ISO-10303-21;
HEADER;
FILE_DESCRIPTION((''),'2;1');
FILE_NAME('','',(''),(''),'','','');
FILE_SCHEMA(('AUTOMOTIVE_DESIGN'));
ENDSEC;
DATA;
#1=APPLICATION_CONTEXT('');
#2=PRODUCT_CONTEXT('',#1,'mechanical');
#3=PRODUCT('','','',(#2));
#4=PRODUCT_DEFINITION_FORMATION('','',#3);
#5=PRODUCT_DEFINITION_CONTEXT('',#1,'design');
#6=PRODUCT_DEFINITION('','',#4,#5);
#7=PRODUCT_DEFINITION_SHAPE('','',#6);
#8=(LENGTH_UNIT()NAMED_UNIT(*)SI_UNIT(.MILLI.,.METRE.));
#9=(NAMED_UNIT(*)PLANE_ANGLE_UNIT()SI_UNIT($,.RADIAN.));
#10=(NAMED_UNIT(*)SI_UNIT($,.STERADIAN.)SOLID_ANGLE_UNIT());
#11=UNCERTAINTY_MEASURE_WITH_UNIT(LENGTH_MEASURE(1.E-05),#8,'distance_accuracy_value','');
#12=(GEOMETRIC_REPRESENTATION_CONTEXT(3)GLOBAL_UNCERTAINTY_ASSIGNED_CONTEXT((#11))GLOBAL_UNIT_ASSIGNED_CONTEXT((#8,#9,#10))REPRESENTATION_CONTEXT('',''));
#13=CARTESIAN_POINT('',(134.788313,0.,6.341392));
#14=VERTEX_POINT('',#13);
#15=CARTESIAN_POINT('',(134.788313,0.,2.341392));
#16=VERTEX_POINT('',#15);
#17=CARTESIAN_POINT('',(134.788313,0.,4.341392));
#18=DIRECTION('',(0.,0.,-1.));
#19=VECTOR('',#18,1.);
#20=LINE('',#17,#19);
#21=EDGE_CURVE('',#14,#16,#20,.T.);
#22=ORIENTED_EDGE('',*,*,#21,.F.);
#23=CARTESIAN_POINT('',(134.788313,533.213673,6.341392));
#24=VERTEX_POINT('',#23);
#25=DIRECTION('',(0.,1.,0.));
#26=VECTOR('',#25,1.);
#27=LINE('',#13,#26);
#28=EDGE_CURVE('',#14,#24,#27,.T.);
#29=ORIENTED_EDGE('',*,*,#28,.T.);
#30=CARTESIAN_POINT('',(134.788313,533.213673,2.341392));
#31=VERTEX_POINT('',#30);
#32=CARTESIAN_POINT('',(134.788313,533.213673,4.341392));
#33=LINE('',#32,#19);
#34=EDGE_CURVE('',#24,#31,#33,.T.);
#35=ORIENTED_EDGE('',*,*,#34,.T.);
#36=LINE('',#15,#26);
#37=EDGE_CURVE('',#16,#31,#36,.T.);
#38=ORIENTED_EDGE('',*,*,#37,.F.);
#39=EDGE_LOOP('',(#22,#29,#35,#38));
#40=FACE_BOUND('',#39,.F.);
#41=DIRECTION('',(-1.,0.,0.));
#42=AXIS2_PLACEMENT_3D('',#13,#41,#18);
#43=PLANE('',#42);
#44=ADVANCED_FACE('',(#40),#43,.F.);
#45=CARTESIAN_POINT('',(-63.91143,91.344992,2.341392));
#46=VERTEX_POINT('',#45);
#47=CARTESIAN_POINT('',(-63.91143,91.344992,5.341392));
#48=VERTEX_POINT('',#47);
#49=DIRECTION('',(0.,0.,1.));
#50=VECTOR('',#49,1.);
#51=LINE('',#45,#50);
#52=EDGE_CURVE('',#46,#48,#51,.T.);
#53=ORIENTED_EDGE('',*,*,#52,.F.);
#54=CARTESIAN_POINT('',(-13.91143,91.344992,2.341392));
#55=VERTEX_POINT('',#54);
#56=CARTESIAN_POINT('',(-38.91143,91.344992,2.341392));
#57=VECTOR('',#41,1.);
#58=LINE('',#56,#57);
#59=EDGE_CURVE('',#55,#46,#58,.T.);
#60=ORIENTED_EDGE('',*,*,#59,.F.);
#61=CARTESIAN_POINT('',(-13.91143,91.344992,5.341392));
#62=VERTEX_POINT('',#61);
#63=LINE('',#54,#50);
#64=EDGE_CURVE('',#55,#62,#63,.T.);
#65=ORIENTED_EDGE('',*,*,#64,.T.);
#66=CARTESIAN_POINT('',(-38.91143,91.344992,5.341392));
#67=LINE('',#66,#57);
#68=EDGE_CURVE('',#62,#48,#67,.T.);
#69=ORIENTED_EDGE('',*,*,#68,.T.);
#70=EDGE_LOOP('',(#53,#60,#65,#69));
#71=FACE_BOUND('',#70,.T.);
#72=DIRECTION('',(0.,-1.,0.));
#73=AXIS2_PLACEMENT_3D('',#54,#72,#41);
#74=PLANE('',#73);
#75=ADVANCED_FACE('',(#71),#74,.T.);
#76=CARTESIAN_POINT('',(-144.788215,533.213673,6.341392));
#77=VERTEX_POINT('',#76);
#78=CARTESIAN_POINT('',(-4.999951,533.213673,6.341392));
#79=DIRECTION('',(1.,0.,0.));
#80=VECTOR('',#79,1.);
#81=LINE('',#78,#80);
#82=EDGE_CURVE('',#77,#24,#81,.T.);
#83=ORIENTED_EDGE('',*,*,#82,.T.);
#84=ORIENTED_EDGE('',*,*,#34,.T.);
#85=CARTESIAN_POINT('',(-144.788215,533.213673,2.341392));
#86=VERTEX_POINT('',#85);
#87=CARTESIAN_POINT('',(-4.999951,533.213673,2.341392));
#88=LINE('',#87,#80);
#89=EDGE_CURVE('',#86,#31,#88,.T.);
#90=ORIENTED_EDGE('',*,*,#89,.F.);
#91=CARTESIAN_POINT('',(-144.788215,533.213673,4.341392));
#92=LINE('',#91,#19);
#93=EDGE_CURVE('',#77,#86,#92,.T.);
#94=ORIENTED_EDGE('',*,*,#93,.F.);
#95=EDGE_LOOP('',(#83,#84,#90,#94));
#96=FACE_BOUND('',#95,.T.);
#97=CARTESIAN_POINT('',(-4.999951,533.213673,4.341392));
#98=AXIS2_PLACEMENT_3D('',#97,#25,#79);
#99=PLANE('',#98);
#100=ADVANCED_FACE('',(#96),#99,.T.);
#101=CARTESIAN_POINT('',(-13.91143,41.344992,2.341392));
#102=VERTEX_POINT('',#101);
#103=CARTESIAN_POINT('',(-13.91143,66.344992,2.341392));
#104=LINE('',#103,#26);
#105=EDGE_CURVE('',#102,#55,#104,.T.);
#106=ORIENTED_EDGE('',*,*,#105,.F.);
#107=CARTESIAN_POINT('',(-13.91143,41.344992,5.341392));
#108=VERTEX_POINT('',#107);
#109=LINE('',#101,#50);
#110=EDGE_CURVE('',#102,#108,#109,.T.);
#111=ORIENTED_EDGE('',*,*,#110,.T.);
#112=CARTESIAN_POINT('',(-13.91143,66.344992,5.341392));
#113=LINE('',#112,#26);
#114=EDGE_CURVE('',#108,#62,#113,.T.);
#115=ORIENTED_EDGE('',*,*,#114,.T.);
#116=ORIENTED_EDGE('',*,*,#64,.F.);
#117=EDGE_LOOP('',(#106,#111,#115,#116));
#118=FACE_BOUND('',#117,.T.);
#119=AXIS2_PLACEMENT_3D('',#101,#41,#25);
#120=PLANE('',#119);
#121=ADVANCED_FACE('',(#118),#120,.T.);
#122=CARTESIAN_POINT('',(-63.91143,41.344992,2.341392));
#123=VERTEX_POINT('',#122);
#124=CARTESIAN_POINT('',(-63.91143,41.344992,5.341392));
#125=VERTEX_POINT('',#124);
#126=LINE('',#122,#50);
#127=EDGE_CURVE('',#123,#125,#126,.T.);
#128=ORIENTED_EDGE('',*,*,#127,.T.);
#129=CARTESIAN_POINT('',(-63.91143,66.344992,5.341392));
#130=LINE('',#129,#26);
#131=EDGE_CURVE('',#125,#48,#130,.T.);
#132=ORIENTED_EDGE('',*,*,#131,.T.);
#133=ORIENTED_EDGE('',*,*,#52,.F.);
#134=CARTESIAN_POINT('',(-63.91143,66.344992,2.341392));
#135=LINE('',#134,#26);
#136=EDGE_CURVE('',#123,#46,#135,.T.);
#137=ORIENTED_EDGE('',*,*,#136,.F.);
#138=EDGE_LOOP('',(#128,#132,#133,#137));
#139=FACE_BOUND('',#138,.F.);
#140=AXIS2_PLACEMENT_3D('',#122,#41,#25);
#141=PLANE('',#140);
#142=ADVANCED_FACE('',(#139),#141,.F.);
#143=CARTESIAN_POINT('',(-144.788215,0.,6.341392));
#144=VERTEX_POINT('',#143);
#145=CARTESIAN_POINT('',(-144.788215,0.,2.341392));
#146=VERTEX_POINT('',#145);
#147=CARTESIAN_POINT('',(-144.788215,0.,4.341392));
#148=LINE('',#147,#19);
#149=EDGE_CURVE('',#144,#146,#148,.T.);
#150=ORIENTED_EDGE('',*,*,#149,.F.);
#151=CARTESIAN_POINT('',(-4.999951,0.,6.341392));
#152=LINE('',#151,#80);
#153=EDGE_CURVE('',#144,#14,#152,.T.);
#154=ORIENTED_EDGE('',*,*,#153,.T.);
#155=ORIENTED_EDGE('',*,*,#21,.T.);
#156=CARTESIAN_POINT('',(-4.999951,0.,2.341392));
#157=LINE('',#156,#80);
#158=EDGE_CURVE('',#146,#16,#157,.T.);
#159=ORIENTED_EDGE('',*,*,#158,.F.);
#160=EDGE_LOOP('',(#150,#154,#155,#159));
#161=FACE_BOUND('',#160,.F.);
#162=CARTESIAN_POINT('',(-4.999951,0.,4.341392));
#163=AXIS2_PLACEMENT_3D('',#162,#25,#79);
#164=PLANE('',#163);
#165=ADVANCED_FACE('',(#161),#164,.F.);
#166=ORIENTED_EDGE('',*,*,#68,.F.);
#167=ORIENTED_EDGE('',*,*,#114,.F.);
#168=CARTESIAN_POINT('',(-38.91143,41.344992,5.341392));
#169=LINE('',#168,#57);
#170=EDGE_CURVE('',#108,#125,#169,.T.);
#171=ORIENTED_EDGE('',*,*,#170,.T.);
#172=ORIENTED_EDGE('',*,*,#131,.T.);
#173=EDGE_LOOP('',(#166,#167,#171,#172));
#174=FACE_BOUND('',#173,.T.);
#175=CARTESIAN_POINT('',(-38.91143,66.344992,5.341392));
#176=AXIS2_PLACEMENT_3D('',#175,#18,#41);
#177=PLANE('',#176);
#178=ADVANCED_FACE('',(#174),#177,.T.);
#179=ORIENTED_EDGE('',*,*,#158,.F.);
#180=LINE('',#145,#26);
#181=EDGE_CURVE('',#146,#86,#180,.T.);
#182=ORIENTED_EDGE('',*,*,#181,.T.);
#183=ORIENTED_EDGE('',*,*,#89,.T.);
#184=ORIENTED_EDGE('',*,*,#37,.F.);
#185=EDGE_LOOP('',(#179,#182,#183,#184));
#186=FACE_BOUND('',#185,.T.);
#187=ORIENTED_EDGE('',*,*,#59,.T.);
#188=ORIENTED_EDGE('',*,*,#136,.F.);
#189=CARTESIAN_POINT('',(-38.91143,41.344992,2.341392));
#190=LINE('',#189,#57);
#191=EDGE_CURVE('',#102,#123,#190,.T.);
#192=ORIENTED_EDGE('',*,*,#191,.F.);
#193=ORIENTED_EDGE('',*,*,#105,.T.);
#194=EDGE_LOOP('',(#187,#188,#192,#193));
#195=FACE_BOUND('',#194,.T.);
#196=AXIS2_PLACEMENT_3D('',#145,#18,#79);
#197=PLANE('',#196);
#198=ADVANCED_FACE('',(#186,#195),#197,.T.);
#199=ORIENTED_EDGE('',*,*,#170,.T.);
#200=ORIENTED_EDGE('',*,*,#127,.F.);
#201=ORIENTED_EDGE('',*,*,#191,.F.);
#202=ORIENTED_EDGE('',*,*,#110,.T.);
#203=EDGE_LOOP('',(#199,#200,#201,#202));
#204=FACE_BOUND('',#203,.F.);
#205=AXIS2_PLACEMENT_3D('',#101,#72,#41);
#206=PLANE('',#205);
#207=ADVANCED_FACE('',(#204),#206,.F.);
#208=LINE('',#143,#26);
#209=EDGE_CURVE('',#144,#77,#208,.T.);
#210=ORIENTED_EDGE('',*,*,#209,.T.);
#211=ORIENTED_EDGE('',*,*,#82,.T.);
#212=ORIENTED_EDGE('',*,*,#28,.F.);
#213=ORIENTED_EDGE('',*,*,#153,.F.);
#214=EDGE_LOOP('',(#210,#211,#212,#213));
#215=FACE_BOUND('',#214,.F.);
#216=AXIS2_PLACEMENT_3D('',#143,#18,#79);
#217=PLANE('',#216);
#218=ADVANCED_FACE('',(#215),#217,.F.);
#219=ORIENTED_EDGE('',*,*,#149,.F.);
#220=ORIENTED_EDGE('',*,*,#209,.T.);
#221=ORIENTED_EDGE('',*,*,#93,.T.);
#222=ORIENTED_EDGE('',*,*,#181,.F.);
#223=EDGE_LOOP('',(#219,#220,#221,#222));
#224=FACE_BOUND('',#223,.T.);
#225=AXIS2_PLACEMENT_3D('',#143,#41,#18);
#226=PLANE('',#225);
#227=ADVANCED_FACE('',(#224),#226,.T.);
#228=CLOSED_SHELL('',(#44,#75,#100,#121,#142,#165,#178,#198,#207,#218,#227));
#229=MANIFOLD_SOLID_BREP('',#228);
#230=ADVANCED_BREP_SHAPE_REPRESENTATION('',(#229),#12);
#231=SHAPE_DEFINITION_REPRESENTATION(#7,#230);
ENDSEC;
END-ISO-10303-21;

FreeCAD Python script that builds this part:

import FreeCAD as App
import Part
import Sketcher
from FreeCAD import Vector
Q = App.Units.Quantity

doc = App.newDocument("Part")
body = doc.addObject("PartDesign::Body", "Body")

# Sketch on XZ plane
sketch1 = body.newObject("Sketcher::SketchObject", "Sketch")
sketch1.AttachmentSupport = (doc.getObject("XZ_Plane"), [""])
sketch1.MapMode = "FlatFace"
sketch1.addGeometry(Part.LineSegment(Vector(-144.788215, 2.341392, 0), Vector(-144.788215, 6.341392, 0)), False)
sketch1.addGeometry(Part.LineSegment(Vector(-144.788215, 6.341392, 0), Vector(134.788313, 6.341392, 0)), False)
sketch1.addGeometry(Part.LineSegment(Vector(134.788313, 6.341392, 0), Vector(134.788313, 2.341392, 0)), False)
sketch1.addGeometry(Part.LineSegment(Vector(134.788313, 2.341392, 0), Vector(-144.788215, 2.341392, 0)), False)
sketch1.addConstraint(Sketcher.Constraint("Coincident", 0, 2, 1, 1))
sketch1.addConstraint(Sketcher.Constraint("Coincident", 1, 2, 2, 1))
sketch1.addConstraint(Sketcher.Constraint("Coincident", 2, 2, 3, 1))
sketch1.addConstraint(Sketcher.Constraint("Coincident", 3, 2, 0, 1))
sketch1.addConstraint(Sketcher.Constraint("Vertical", 0))
sketch1.addConstraint(Sketcher.Constraint("Horizontal", 1))
sketch1.addConstraint(Sketcher.Constraint("Vertical", 2))
sketch1.addConstraint(Sketcher.Constraint("Horizontal", 3))
sketch1.addConstraint(Sketcher.Constraint("DistanceY", 0, 1, 0, 2, Q("4 mm")))
sketch1.addConstraint(Sketcher.Constraint("DistanceX", 1, 1, 1, 2, Q("279.576528 mm")))
sketch1.addConstraint(Sketcher.Constraint("DistanceX", 0, 2, -1, 1, Q("144.788215 mm")))
sketch1.addConstraint(Sketcher.Constraint("DistanceY", -1, 1, 0, 2, Q("6.341392 mm")))
pad1 = body.newObject("PartDesign::Pad", "Pad")
pad1.Profile = sketch1
pad1.Length = 533.213673
pad1.Reversed = True

# Sketch on XY plane
sketch2 = body.newObject("Sketcher::SketchObject", "Sketch001")
sketch2.AttachmentSupport = (doc.getObject("XY_Plane"), [""])
sketch2.MapMode = "FlatFace"
sketch2.AttachmentOffset = App.Placement(Vector(0, 0, 2.341392), App.Rotation())
sketch2.addGeometry(Part.LineSegment(Vector(-13.91143, 91.344992, 0), Vector(-13.91143, 41.344992, 0)), False)
sketch2.addGeometry(Part.LineSegment(Vector(-13.91143, 41.344992, 0), Vector(-63.91143, 41.344992, 0)), False)
sketch2.addGeometry(Part.LineSegment(Vector(-63.91143, 41.344992, 0), Vector(-63.91143, 91.344992, 0)), False)
sketch2.addGeometry(Part.LineSegment(Vector(-63.91143, 91.344992, 0), Vector(-13.91143, 91.344992, 0)), False)
sketch2.addConstraint(Sketcher.Constraint("Coincident", 0, 2, 1, 1))
sketch2.addConstraint(Sketcher.Constraint("Coincident", 1, 2, 2, 1))
sketch2.addConstraint(Sketcher.Constraint("Coincident", 2, 2, 3, 1))
sketch2.addConstraint(Sketcher.Constraint("Coincident", 3, 2, 0, 1))
sketch2.addConstraint(Sketcher.Constraint("Vertical", 0))
sketch2.addConstraint(Sketcher.Constraint("Horizontal", 1))
sketch2.addConstraint(Sketcher.Constraint("Vertical", 2))
sketch2.addConstraint(Sketcher.Constraint("Horizontal", 3))
sketch2.addConstraint(Sketcher.Constraint("Equal", 3, 0))
sketch2.addConstraint(Sketcher.Constraint("DistanceX", 1, 2, 1, 1, Q("50 mm")))
sketch2.addConstraint(Sketcher.Constraint("DistanceX", 0, 2, -1, 1, Q("13.91143 mm")))
sketch2.addConstraint(Sketcher.Constraint("DistanceY", -1, 1, 0, 2, Q("41.344992 mm")))
pocket1 = body.newObject("PartDesign::Pocket", "Pocket")
pocket1.Profile = sketch2
pocket1.Length = 3
pocket1.Reversed = True

doc.recompute()
